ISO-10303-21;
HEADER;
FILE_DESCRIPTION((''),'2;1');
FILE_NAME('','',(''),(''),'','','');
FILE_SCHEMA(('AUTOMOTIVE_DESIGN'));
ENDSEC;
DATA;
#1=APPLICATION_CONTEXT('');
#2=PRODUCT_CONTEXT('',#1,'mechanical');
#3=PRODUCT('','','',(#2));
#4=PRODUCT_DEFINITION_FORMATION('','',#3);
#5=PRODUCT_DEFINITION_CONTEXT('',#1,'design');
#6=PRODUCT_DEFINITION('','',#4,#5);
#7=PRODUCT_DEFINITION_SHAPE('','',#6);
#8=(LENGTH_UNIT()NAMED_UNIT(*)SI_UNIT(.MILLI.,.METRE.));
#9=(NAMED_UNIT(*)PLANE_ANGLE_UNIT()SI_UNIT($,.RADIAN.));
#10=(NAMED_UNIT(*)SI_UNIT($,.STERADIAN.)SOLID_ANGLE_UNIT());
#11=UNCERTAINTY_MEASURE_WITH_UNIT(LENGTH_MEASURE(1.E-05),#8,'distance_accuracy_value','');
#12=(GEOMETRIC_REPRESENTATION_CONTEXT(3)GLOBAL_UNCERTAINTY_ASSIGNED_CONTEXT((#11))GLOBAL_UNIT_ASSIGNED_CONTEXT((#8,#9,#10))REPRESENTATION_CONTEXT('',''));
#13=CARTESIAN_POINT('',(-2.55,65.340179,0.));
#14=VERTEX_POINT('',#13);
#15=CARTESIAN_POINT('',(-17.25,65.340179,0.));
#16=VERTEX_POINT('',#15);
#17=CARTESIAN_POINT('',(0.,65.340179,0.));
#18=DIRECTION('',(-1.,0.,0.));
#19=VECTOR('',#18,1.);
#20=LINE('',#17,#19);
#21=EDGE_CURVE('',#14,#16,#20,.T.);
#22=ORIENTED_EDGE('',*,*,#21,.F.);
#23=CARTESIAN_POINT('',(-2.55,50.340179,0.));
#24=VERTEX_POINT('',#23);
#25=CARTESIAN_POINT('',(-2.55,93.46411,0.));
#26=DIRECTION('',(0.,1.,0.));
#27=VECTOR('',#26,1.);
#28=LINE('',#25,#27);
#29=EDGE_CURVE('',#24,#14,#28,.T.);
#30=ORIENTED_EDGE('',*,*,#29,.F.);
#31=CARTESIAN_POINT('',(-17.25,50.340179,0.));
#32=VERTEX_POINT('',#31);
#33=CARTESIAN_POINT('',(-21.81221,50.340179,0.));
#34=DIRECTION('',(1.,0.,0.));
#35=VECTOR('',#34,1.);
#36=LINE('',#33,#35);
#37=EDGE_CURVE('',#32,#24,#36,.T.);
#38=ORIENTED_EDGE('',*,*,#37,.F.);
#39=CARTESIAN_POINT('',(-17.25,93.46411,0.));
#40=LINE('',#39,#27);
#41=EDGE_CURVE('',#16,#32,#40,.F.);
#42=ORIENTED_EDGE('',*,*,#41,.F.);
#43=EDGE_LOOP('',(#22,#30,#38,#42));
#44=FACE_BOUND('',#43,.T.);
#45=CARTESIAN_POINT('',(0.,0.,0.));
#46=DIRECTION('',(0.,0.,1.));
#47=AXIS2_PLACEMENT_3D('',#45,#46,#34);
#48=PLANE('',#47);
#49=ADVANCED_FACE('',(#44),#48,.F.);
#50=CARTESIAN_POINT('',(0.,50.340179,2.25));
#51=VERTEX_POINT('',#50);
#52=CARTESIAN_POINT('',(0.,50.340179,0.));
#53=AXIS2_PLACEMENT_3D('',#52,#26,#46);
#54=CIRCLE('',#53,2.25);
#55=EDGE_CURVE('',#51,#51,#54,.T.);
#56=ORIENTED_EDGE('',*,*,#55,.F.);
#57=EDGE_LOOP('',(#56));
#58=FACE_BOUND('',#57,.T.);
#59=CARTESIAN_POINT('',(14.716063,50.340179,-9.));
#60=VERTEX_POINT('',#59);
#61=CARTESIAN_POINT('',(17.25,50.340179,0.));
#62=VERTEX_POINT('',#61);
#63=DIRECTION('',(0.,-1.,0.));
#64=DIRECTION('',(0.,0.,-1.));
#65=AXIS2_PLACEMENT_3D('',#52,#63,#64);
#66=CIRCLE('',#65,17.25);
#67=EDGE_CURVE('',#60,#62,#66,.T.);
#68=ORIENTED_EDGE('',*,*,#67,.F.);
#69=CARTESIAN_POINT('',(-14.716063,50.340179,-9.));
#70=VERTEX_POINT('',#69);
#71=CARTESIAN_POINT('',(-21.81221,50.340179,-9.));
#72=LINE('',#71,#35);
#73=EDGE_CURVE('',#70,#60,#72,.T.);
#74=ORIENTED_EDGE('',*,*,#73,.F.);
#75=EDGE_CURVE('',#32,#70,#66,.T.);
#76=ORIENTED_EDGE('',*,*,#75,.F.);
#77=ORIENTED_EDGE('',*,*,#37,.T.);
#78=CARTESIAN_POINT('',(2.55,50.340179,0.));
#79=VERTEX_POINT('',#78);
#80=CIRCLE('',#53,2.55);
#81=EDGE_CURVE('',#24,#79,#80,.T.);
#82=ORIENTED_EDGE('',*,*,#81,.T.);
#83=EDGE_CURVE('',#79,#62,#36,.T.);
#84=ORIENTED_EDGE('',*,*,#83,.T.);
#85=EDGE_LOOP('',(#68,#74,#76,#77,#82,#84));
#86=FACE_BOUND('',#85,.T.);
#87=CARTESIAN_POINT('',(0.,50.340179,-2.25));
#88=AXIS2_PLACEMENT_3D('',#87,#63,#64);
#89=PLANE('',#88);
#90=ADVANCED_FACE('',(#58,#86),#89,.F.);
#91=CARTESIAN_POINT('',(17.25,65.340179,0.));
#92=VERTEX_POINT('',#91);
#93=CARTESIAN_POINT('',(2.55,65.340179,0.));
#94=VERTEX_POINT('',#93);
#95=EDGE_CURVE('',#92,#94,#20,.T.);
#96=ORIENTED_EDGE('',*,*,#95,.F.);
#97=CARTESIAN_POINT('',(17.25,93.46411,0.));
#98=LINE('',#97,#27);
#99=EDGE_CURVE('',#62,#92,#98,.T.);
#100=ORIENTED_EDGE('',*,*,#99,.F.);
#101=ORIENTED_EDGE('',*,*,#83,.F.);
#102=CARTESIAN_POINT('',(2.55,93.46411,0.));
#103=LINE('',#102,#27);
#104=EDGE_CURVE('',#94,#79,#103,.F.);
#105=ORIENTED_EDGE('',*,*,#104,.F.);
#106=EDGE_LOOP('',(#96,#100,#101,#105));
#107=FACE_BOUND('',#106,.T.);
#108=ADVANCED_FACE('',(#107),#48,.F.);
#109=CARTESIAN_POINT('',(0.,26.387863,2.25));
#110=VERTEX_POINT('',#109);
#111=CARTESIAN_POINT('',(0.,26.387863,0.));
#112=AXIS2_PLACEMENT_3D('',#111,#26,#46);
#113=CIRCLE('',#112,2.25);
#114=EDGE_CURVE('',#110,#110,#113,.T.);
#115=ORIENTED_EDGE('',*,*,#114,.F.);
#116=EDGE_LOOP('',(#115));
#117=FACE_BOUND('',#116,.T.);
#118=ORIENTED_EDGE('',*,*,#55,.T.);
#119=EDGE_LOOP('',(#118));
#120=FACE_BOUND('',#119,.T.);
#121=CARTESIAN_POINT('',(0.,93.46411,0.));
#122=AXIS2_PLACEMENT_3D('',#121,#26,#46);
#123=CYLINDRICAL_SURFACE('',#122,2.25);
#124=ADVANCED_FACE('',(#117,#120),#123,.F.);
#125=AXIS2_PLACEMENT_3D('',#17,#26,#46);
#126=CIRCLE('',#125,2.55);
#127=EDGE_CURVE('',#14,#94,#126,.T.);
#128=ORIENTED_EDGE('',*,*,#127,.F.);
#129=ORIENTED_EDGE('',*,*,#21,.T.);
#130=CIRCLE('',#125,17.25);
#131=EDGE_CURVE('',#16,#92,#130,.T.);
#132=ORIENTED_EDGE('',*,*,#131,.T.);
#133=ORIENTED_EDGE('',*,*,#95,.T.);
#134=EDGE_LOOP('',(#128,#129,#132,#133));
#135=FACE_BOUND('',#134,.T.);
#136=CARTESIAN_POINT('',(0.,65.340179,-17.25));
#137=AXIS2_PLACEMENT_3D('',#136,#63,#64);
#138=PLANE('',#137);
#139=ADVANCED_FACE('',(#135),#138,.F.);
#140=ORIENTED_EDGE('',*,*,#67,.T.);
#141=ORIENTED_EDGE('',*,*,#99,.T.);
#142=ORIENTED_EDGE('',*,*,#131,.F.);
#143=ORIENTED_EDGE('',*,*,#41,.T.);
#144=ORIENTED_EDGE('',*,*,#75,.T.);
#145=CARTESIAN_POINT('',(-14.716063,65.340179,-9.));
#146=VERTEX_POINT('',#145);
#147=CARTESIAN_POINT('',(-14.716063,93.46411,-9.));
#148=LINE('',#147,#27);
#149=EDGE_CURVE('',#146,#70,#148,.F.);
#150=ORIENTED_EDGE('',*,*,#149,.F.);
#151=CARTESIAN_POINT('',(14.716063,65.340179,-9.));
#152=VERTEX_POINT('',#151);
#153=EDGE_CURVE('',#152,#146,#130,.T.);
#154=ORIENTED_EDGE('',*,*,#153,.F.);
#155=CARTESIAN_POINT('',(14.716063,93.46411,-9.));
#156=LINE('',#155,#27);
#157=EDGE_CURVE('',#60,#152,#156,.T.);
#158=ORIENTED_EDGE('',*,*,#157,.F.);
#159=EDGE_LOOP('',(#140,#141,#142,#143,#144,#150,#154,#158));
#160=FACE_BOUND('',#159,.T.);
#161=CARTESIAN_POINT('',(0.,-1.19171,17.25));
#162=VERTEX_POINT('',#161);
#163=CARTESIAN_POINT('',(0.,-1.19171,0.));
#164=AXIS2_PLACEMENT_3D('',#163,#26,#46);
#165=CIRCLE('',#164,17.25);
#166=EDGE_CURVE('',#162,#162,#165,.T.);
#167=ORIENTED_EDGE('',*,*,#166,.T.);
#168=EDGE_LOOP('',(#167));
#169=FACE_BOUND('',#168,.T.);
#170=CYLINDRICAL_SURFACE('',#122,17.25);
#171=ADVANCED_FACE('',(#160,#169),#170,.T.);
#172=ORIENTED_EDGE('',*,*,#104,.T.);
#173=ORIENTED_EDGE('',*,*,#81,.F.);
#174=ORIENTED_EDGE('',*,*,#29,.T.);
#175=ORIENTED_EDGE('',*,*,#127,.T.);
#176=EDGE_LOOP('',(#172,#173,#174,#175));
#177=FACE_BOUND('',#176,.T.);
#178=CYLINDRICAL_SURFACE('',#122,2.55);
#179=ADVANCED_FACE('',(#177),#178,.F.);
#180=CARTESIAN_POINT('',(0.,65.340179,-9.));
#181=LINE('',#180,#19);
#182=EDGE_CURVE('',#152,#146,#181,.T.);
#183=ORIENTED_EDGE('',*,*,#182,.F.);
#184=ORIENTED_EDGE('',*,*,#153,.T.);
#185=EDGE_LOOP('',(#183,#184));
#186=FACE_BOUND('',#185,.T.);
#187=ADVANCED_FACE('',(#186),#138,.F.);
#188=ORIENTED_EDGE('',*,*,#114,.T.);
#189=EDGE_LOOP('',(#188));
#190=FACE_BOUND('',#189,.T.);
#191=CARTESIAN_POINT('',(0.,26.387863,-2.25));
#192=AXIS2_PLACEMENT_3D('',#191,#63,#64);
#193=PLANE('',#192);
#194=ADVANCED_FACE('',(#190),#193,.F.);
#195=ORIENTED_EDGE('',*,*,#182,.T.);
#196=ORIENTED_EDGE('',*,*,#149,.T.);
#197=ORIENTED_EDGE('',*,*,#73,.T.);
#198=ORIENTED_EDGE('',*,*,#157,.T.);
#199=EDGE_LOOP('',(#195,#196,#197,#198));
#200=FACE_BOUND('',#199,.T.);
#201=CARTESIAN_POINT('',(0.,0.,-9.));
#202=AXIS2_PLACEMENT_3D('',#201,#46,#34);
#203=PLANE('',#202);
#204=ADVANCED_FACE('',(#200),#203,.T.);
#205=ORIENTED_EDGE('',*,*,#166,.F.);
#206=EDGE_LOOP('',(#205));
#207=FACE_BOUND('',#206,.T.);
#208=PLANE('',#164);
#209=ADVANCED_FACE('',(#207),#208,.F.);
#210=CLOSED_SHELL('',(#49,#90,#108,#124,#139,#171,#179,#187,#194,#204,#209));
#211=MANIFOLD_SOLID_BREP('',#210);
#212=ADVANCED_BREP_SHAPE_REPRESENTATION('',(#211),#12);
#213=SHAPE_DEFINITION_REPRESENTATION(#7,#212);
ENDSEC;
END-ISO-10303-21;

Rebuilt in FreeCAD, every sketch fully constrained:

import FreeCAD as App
import Part
import Sketcher
from FreeCAD import Vector
Q = App.Units.Quantity

doc = App.newDocument("Part")
body = doc.addObject("PartDesign::Body", "Body")

sketch1 = body.newObject("Sketcher::SketchObject", "Sketch")
sketch1.AttachmentSupport = (doc.getObject("YZ_Plane"), [""])
sketch1.MapMode = "FlatFace"
sketch1.addGeometry(Part.LineSegment(Vector(26.39, -2.25, 0), Vector(26.39, 0, 0)), False)
sketch1.addGeometry(Part.LineSegment(Vector(26.39, 0, 0), Vector(-1.19, 0, 0)), False)
sketch1.addGeometry(Part.LineSegment(Vector(-1.19, 0, 0), Vector(-1.19, -17.25, 0)), False)
sketch1.addGeometry(Part.LineSegment(Vector(-1.19, -17.25, 0), Vector(65.34, -17.25, 0)), False)
sketch1.addGeometry(Part.LineSegment(Vector(65.34, -17.25, 0), Vector(65.34, -2.55, 0)), False)
sketch1.addGeometry(Part.LineSegment(Vector(65.34, -2.55, 0), Vector(50.34, -2.55, 0)), False)
sketch1.addGeometry(Part.LineSegment(Vector(50.34, -2.55, 0), Vector(50.34, -2.25, 0)), False)
sketch1.addGeometry(Part.LineSegment(Vector(50.34, -2.25, 0), Vector(26.39, -2.25, 0)), False)
sketch1.addConstraint(Sketcher.Constraint("Coincident", 0, 2, 1, 1))
sketch1.addConstraint(Sketcher.Constraint("Coincident", 1, 2, 2, 1))
sketch1.addConstraint(Sketcher.Constraint("Coincident", 2, 2, 3, 1))
sketch1.addConstraint(Sketcher.Constraint("Coincident", 3, 2, 4, 1))
sketch1.addConstraint(Sketcher.Constraint("Coincident", 4, 2, 5, 1))
sketch1.addConstraint(Sketcher.Constraint("Coincident", 5, 2, 6, 1))
sketch1.addConstraint(Sketcher.Constraint("Coincident", 6, 2, 7, 1))
sketch1.addConstraint(Sketcher.Constraint("Coincident", 7, 2, 0, 1))
sketch1.addConstraint(Sketcher.Constraint("Vertical", 0))
sketch1.addConstraint(Sketcher.Constraint("Horizontal", 1))
sketch1.addConstraint(Sketcher.Constraint("Vertical", 2))
sketch1.addConstraint(Sketcher.Constraint("Horizontal", 3))
sketch1.addConstraint(Sketcher.Constraint("Vertical", 4))
sketch1.addConstraint(Sketcher.Constraint("Horizontal", 5))
sketch1.addConstraint(Sketcher.Constraint("Vertical", 6))
sketch1.addConstraint(Sketcher.Constraint("Horizontal", 7))
sketch1.addConstraint(Sketcher.Constraint("PointOnObject", 0, 2, -1))
sketch1.addConstraint(Sketcher.Constraint("DistanceX", 5, 2, 5, 1, Q("15 mm")))
sketch1.addConstraint(Sketcher.Constraint("DistanceY", 4, 1, 4, 2, Q("14.7 mm")))
sketch1.addConstraint(Sketcher.Constraint("DistanceY", 6, 1, 6, 2, Q("0.3 mm")))
sketch1.addConstraint(Sketcher.Constraint("DistanceY", 0, 1, 0, 2, Q("2.25 mm")))
sketch1.addConstraint(Sketcher.Constraint("DistanceX", 3, 1, 3, 2, Q("66.531889 mm")))
sketch1.addConstraint(Sketcher.Constraint("DistanceX", 1, 2, 1, 1, Q("27.579573 mm")))
sketch1.addConstraint(Sketcher.Constraint("DistanceX", 1, 2, -1, 1, Q("1.19171 mm")))
revolution = body.newObject("PartDesign::Revolution", "Revolution")
revolution.Profile = sketch1
revolution.ReferenceAxis = (sketch1, ["H_Axis"])
revolution.Angle = 360

sketch2 = body.newObject("Sketcher::SketchObject", "Sketch001")
sketch2.AttachmentSupport = (doc.getObject("XY_Plane"), [""])
sketch2.MapMode = "FlatFace"
sketch2.addGeometry(Part.LineSegment(Vector(-22, 80, 0), Vector(-22, 50, 0)), False)
sketch2.addGeometry(Part.LineSegment(Vector(-22, 50, 0), Vector(22, 50, 0)), False)
sketch2.addGeometry(Part.LineSegment(Vector(22, 50, 0), Vector(22, 80, 0)), False)
sketch2.addGeometry(Part.LineSegment(Vector(22, 80, 0), Vector(-22, 80, 0)), False)
sketch2.addConstraint(Sketcher.Constraint("Coincident", 0, 2, 1, 1))
sketch2.addConstraint(Sketcher.Constraint("Coincident", 1, 2, 2, 1))
sketch2.addConstraint(Sketcher.Constraint("Coincident", 2, 2, 3, 1))
sketch2.addConstraint(Sketcher.Constraint("Coincident", 3, 2, 0, 1))
sketch2.addConstraint(Sketcher.Constraint("Vertical", 0))
sketch2.addConstraint(Sketcher.Constraint("Horizontal", 1))
sketch2.addConstraint(Sketcher.Constraint("Vertical", 2))
sketch2.addConstraint(Sketcher.Constraint("Horizontal", 3))
sketch2.addConstraint(Sketcher.Constraint("DistanceY", 0, 2, 0, 1, Q("30 mm")))
sketch2.addConstraint(Sketcher.Constraint("DistanceX", 1, 1, 1, 2, Q("43.62442 mm")))
sketch2.addConstraint(Sketcher.Constraint("DistanceX", 0, 2, -1, 1, Q("21.81221 mm")))
sketch2.addConstraint(Sketcher.Constraint("DistanceY", -1, 1, 0, 2, Q("50.340179 mm")))
pocket1 = body.newObject("PartDesign::Pocket", "Pocket")
pocket1.Profile = sketch2
pocket1.Length = 9

doc.recompute()
